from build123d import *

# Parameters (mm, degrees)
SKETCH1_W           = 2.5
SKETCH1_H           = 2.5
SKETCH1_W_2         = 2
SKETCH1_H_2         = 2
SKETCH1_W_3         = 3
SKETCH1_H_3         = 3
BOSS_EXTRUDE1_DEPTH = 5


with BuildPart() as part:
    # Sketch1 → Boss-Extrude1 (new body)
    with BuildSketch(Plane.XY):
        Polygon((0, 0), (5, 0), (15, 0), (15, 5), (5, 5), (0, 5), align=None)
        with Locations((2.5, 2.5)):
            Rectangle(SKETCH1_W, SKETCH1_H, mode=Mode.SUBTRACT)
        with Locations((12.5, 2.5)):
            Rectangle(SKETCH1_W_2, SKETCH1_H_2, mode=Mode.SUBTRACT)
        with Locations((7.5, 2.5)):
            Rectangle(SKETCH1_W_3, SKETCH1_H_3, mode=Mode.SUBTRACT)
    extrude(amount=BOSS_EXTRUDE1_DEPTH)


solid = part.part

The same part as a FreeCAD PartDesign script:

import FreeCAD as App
import Part
import Sketcher

V = App.Vector

doc = App.newDocument("Part")
body = doc.addObject("PartDesign::Body", "Body")

sketch1 = body.newObject("Sketcher::SketchObject", "Sketch")
sketch1.AttachmentSupport = (doc.getObject("XY_Plane"), [""])
sketch1.MapMode = "FlatFace"
sketch1.addGeometry([
    Part.LineSegment(V(0, 0, 0), V(15, 0, 0)),
    Part.LineSegment(V(15, 0, 0), V(15, 5, 0)),
    Part.LineSegment(V(15, 5, 0), V(0, 5, 0)),
    Part.LineSegment(V(0, 5, 0), V(0, 0, 0)),
    Part.LineSegment(V(3.8, 1.2, 0), V(1.2, 1.2, 0)),
    Part.LineSegment(V(1.2, 1.2, 0), V(1.2, 3.8, 0)),
    Part.LineSegment(V(1.2, 3.8, 0), V(3.8, 3.8, 0)),
    Part.LineSegment(V(3.8, 3.8, 0), V(3.8, 1.2, 0)),
    Part.LineSegment(V(9, 1, 0), V(6, 1, 0)),
    Part.LineSegment(V(6, 1, 0), V(6, 4, 0)),
    Part.LineSegment(V(6, 4, 0), V(9, 4, 0)),
    Part.LineSegment(V(9, 4, 0), V(9, 1, 0)),
    Part.LineSegment(V(13.5, 1.5, 0), V(11.5, 1.5, 0)),
    Part.LineSegment(V(11.5, 1.5, 0), V(11.5, 3.5, 0)),
    Part.LineSegment(V(11.5, 3.5, 0), V(13.5, 3.5, 0)),
    Part.LineSegment(V(13.5, 3.5, 0), V(13.5, 1.5, 0)),
], False)
sketch1.addConstraint([
    Sketcher.Constraint("Coincident", 0, 2, 1, 1),
    Sketcher.Constraint("Coincident", 1, 2, 2, 1),
    Sketcher.Constraint("Coincident", 2, 2, 3, 1),
    Sketcher.Constraint("Coincident", 3, 2, 0, 1),
    Sketcher.Constraint("Coincident", 4, 2, 5, 1),
    Sketcher.Constraint("Coincident", 5, 2, 6, 1),
    Sketcher.Constraint("Coincident", 6, 2, 7, 1),
    Sketcher.Constraint("Coincident", 7, 2, 4, 1),
    Sketcher.Constraint("Coincident", 8, 2, 9, 1),
    Sketcher.Constraint("Coincident", 9, 2, 10, 1),
    Sketcher.Constraint("Coincident", 10, 2, 11, 1),
    Sketcher.Constraint("Coincident", 11, 2, 8, 1),
    Sketcher.Constraint("Coincident", 12, 2, 13, 1),
    Sketcher.Constraint("Coincident", 13, 2, 14, 1),
    Sketcher.Constraint("Coincident", 14, 2, 15, 1),
    Sketcher.Constraint("Coincident", 15, 2, 12, 1),
    Sketcher.Constraint("Horizontal", 0),
    Sketcher.Constraint("Vertical", 1),
    Sketcher.Constraint("Horizontal", 2),
    Sketcher.Constraint("Vertical", 3),
    Sketcher.Constraint("Horizontal", 4),
    Sketcher.Constraint("Vertical", 5),
    Sketcher.Constraint("Horizontal", 6),
    Sketcher.Constraint("Vertical", 7),
    Sketcher.Constraint("Horizontal", 8),
    Sketcher.Constraint("Vertical", 9),
    Sketcher.Constraint("Horizontal", 10),
    Sketcher.Constraint("Vertical", 11),
    Sketcher.Constraint("Horizontal", 12),
    Sketcher.Constraint("Vertical", 13),
    Sketcher.Constraint("Horizontal", 14),
    Sketcher.Constraint("Vertical", 15),
    Sketcher.Constraint("Coincident", 3, 2, -1, 1),
    Sketcher.Constraint("Equal", 6, 5),
    Sketcher.Constraint("Equal", 10, 9),
    Sketcher.Constraint("Equal", 14, 13),
    Sketcher.Constraint("DistanceX", 0, 1, 0, 2, 15.0),
    Sketcher.Constraint("DistanceX", 8, 2, 8, 1, 3.0),
    Sketcher.Constraint("DistanceX", 12, 2, 12, 1, 2.0),
    Sketcher.Constraint("DistanceY", 1, 1, 1, 2, 5.0),
    Sketcher.Constraint("DistanceX", 4, 2, 4, 1, 2.5),
    Sketcher.Constraint("DistanceX", -1, 1, 8, 2, 6.0),
    Sketcher.Constraint("DistanceY", -1, 1, 8, 2, 1.0),
    Sketcher.Constraint("DistanceX", -1, 1, 12, 2, 11.5),
    Sketcher.Constraint("DistanceY", -1, 1, 12, 2, 1.5),
    Sketcher.Constraint("DistanceX", -1, 1, 4, 2, 1.25),
    Sketcher.Constraint("DistanceY", -1, 1, 4, 2, 1.25),
])
pad1 = body.newObject("PartDesign::Pad", "Pad")
pad1.Profile = sketch1
pad1.Length = 5

doc.recompute()
